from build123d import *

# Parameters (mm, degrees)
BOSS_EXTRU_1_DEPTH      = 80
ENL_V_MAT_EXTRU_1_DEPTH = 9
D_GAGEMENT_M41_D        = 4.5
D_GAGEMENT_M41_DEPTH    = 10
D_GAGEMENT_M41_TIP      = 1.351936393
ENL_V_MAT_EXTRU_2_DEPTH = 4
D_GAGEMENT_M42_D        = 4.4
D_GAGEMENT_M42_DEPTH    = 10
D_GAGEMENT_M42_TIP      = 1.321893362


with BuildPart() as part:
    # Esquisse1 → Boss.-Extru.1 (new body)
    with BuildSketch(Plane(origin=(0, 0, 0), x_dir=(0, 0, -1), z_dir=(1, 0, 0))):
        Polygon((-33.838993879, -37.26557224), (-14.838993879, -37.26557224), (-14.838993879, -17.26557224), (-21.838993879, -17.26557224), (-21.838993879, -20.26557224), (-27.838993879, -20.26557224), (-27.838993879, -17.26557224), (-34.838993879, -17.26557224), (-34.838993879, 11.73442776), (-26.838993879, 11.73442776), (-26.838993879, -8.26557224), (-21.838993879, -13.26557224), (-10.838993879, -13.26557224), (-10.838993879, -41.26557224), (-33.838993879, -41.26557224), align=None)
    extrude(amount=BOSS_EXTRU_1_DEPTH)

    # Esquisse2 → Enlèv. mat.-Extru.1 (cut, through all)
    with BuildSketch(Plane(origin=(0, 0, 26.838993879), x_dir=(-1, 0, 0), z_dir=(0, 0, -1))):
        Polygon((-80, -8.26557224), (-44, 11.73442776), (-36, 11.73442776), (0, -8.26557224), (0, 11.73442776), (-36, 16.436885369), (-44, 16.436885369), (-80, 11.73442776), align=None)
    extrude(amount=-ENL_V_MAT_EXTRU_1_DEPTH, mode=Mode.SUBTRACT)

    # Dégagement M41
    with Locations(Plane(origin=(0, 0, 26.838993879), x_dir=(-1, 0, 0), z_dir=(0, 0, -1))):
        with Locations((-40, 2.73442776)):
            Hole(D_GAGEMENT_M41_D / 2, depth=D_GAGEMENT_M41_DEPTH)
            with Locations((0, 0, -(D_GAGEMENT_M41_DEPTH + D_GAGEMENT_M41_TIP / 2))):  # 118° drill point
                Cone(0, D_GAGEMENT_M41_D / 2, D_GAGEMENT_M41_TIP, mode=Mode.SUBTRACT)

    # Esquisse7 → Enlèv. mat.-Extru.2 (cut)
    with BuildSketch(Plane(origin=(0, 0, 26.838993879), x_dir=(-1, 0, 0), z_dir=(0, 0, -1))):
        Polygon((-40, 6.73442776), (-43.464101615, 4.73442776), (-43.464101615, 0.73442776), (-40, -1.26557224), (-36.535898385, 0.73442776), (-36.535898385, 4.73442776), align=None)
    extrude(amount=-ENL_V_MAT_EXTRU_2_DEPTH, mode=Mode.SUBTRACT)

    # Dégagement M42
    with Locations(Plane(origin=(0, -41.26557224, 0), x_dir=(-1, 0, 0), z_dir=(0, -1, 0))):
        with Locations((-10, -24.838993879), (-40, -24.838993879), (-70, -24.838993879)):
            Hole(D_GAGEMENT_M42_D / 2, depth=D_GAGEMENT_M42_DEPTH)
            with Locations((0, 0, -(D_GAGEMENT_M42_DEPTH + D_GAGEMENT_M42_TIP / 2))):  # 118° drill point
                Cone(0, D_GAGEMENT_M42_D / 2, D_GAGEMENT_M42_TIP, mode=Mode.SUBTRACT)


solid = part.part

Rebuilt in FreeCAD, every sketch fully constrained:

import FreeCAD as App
import Part
import Sketcher
Q = App.Units.Quantity

doc = App.newDocument("Part")
body = doc.addObject("PartDesign::Body", "Body")

# Sketch on YZ plane
sketch1 = body.newObject("Sketcher::SketchObject", "Sketch")
sketch1.AttachmentSupport = (doc.getObject("YZ_Plane"), [""])
sketch1.MapMode = "FlatFace"
sketch1.addGeometry([
    Part.LineSegment(App.Vector(-37.3, 14.8, 0), App.Vector(-37.3, 33.8, 0)),  # 0
    Part.LineSegment(App.Vector(-37.3, 33.8, 0), App.Vector(-41.3, 33.8, 0)),  # 1
    Part.LineSegment(App.Vector(-41.3, 33.8, 0), App.Vector(-41.3, 10.8, 0)),  # 2
    Part.LineSegment(App.Vector(-41.3, 10.8, 0), App.Vector(-13.3, 10.8, 0)),  # 3
    Part.LineSegment(App.Vector(-13.3, 10.8, 0), App.Vector(-13.3, 21.8, 0)),  # 4
    Part.LineSegment(App.Vector(-13.3, 21.8, 0), App.Vector(-8.3, 26.8, 0)),  # 5
    Part.LineSegment(App.Vector(-8.3, 26.8, 0), App.Vector(11.7, 26.8, 0)),  # 6
    Part.LineSegment(App.Vector(11.7, 26.8, 0), App.Vector(11.7, 34.8, 0)),  # 7
    Part.LineSegment(App.Vector(11.7, 34.8, 0), App.Vector(-17.3, 34.8, 0)),  # 8
    Part.LineSegment(App.Vector(-17.3, 34.8, 0), App.Vector(-17.3, 27.8, 0)),  # 9
    Part.LineSegment(App.Vector(-17.3, 27.8, 0), App.Vector(-20.3, 27.8, 0)),  # 10
    Part.LineSegment(App.Vector(-20.3, 27.8, 0), App.Vector(-20.3, 21.8, 0)),  # 11
    Part.LineSegment(App.Vector(-20.3, 21.8, 0), App.Vector(-17.3, 21.8, 0)),  # 12
    Part.LineSegment(App.Vector(-17.3, 21.8, 0), App.Vector(-17.3, 14.8, 0)),  # 13
    Part.LineSegment(App.Vector(-17.3, 14.8, 0), App.Vector(-37.3, 14.8, 0)),  # 14
], False)
sketch1.addConstraint([
    Sketcher.Constraint("Coincident", 0, 2, 1, 1),
    Sketcher.Constraint("Coincident", 1, 2, 2, 1),
    Sketcher.Constraint("Coincident", 2, 2, 3, 1),
    Sketcher.Constraint("Coincident", 3, 2, 4, 1),
    Sketcher.Constraint("Coincident", 4, 2, 5, 1),
    Sketcher.Constraint("Coincident", 5, 2, 6, 1),
    Sketcher.Constraint("Coincident", 6, 2, 7, 1),
    Sketcher.Constraint("Coincident", 7, 2, 8, 1),
    Sketcher.Constraint("Coincident", 8, 2, 9, 1),
    Sketcher.Constraint("Coincident", 9, 2, 10, 1),
    Sketcher.Constraint("Coincident", 10, 2, 11, 1),
    Sketcher.Constraint("Coincident", 11, 2, 12, 1),
    Sketcher.Constraint("Coincident", 12, 2, 13, 1),
    Sketcher.Constraint("Coincident", 13, 2, 14, 1),
    Sketcher.Constraint("Coincident", 14, 2, 0, 1),
    Sketcher.Constraint("Vertical", 0),
    Sketcher.Constraint("Horizontal", 1),
    Sketcher.Constraint("Vertical", 2),
    Sketcher.Constraint("Horizontal", 3),
    Sketcher.Constraint("Vertical", 4),
    Sketcher.Constraint("Horizontal", 6),
    Sketcher.Constraint("Vertical", 7),
    Sketcher.Constraint("Horizontal", 8),
    Sketcher.Constraint("Vertical", 9),
    Sketcher.Constraint("Horizontal", 10),
    Sketcher.Constraint("Vertical", 11),
    Sketcher.Constraint("Horizontal", 12),
    Sketcher.Constraint("Vertical", 13),
    Sketcher.Constraint("Horizontal", 14),
    Sketcher.Constraint("Horizontal", 4, 2, 11, 2),
    Sketcher.Constraint("Vertical", 9, 2, 12, 2),
    Sketcher.Constraint("Equal", 6, 14),
    Sketcher.Constraint("Equal", 9, 13),
    Sketcher.Constraint("DistanceX", 1, 2, 1, 1, 4.0),
    Sketcher.Constraint("DistanceX", 3, 1, 3, 2, 28.0),
    Sketcher.Constraint("DistanceX", 6, 1, 6, 2, 20.0),
    Sketcher.Constraint("DistanceX", 8, 2, 8, 1, 29.0),
    Sketcher.Constraint("DistanceX", 10, 2, 10, 1, 3.0),
    Sketcher.Constraint("DistanceY", 0, 1, 0, 2, 19.0),
    Sketcher.Constraint("DistanceY", 2, 2, 2, 1, 23.0),
    Sketcher.Constraint("DistanceY", 4, 1, 4, 2, 11.0),
    Sketcher.Constraint("DistanceY", 7, 1, 7, 2, 8.0),
    Sketcher.Constraint("DistanceY", 11, 2, 11, 1, 6.0),
    Sketcher.Constraint("DistanceX", 0, 2, -1, 1, 37.265572),
    Sketcher.Constraint("DistanceY", -1, 1, 0, 2, 33.838994),
])
pad1 = body.newObject("PartDesign::Pad", "Pad")
pad1.Profile = sketch1
pad1.Length = 80

# Sketch on XY plane
sketch2 = body.newObject("Sketcher::SketchObject", "Sketch001")
sketch2.AttachmentSupport = (doc.getObject("XY_Plane"), [""])
sketch2.MapMode = "FlatFace"
sketch2.AttachmentOffset = App.Placement(App.Vector(0, 0, 26.838994), App.Rotation())
sketch2.addGeometry([
    Part.LineSegment(App.Vector(80, -8, 0), App.Vector(44, 12, 0)),  # 0
    Part.LineSegment(App.Vector(44, 12, 0), App.Vector(36, 12, 0)),  # 1
    Part.LineSegment(App.Vector(36, 12, 0), App.Vector(0, -8, 0)),  # 2
    Part.LineSegment(App.Vector(0, -8, 0), App.Vector(0, 12, 0)),  # 3
    Part.LineSegment(App.Vector(0, 12, 0), App.Vector(36, 16, 0)),  # 4
    Part.LineSegment(App.Vector(36, 16, 0), App.Vector(44, 16, 0)),  # 5
    Part.LineSegment(App.Vector(44, 16, 0), App.Vector(80, 12, 0)),  # 6
    Part.LineSegment(App.Vector(80, 12, 0), App.Vector(80, -8, 0)),  # 7
], False)
sketch2.addConstraint([
    Sketcher.Constraint("Coincident", 0, 2, 1, 1),
    Sketcher.Constraint("Coincident", 1, 2, 2, 1),
    Sketcher.Constraint("Coincident", 2, 2, 3, 1),
    Sketcher.Constraint("Coincident", 3, 2, 4, 1),
    Sketcher.Constraint("Coincident", 4, 2, 5, 1),
    Sketcher.Constraint("Coincident", 5, 2, 6, 1),
    Sketcher.Constraint("Coincident", 6, 2, 7, 1),
    Sketcher.Constraint("Coincident", 7, 2, 0, 1),
    Sketcher.Constraint("Horizontal", 1),
    Sketcher.Constraint("Vertical", 3),
    Sketcher.Constraint("Horizontal", 5),
    Sketcher.Constraint("Vertical", 7),
    Sketcher.Constraint("PointOnObject", 2, 2, -2),
    Sketcher.Constraint("Horizontal", 1, 2, 3, 2),
    Sketcher.Constraint("Horizontal", 3, 2, 6, 2),
    Sketcher.Constraint("Horizontal", 2, 2, 7, 2),
    Sketcher.Constraint("Vertical", 1, 2, 4, 2),
    Sketcher.Constraint("Vertical", 0, 2, 5, 2),
    Sketcher.Constraint("Equal", 0, 2),
    Sketcher.Constraint("DistanceX", 1, 2, 1, 1, 8.0),
    Sketcher.Constraint("DistanceY", 3, 1, 3, 2, 20.0),
    Sketcher.Constraint("DistanceX", -1, 1, 0, 2, 44.0),
    Sketcher.Constraint("Distance", 4, 36.305827),
    Sketcher.Constraint("DistanceY", -1, 1, 0, 2, 11.734428),
])
pocket1 = body.newObject("PartDesign::Pocket", "Pocket")
pocket1.Profile = sketch2
pocket1.Type = "ThroughAll"
pocket1.Reversed = True

# Sketch on XY plane
sketch3 = body.newObject("Sketcher::SketchObject", "Sketch002")
sketch3.AttachmentSupport = (doc.getObject("XY_Plane"), [""])
sketch3.MapMode = "FlatFace"
sketch3.AttachmentOffset = App.Placement(App.Vector(0, 0, 26.838994), App.Rotation())
sketch3.addGeometry(Part.Circle(App.Vector(40, 2.7, 0), App.Vector(0, 0, 1), 2.2), False)
sketch3.addConstraint([
    Sketcher.Constraint("Diameter", 0, 4.5),
    Sketcher.Constraint("DistanceX", -1, 1, 0, 3, 40.0),
    Sketcher.Constraint("DistanceY", -1, 1, 0, 3, 2.734428),
])
doc.recompute()
hole = body.newObject("PartDesign::Hole", "Hole")
hole.Profile = sketch3
hole.ThreadType = "None"
hole.Diameter = 4.5
hole.DepthType = "Dimension"
hole.Depth = 10
hole.DrillPoint = "Angled"
hole.DrillPointAngle = 118
hole.Reversed = True

# Sketch on XY plane
sketch4 = body.newObject("Sketcher::SketchObject", "Sketch003")
sketch4.AttachmentSupport = (doc.getObject("XY_Plane"), [""])
sketch4.MapMode = "FlatFace"
sketch4.AttachmentOffset = App.Placement(App.Vector(0, 0, 26.838994), App.Rotation())
sketch4.addGeometry([
    Part.LineSegment(App.Vector(40, 6.7, 0), App.Vector(43.5, 4.7, 0)),  # 0
    Part.LineSegment(App.Vector(43.5, 4.7, 0), App.Vector(43.5, 0.7, 0)),  # 1
    Part.LineSegment(App.Vector(43.5, 0.7, 0), App.Vector(40, -1.3, 0)),  # 2
    Part.LineSegment(App.Vector(40, -1.3, 0), App.Vector(36.5, 0.7, 0)),  # 3
    Part.LineSegment(App.Vector(36.5, 0.7, 0), App.Vector(36.5, 4.7, 0)),  # 4
    Part.LineSegment(App.Vector(36.5, 4.7, 0), App.Vector(40, 6.7, 0)),  # 5
], False)
sketch4.addConstraint([
    Sketcher.Constraint("Coincident", 0, 2, 1, 1),
    Sketcher.Constraint("Coincident", 1, 2, 2, 1),
    Sketcher.Constraint("Coincident", 2, 2, 3, 1),
    Sketcher.Constraint("Coincident", 3, 2, 4, 1),
    Sketcher.Constraint("Coincident", 4, 2, 5, 1),
    Sketcher.Constraint("Coincident", 5, 2, 0, 1),
    Sketcher.Constraint("Vertical", 1),
    Sketcher.Constraint("Vertical", 4),
    Sketcher.Constraint("Parallel", 0, 3),
    Sketcher.Constraint("Parallel", 2, 5),
    Sketcher.Constraint("Horizontal", 1, 2, 3, 2),
    Sketcher.Constraint("Horizontal", 0, 2, 4, 2),
    Sketcher.Constraint("Vertical", 2, 2, 5, 2),
    Sketcher.Constraint("DistanceY", 1, 2, 1, 1, 4.0),
    Sketcher.Constraint("Angle", 0, Q("-30 deg")),
    Sketcher.Constraint("Distance", 0, 4.0),
    Sketcher.Constraint("DistanceX", -1, 1, 2, 2, 40.0),
    Sketcher.Constraint("DistanceY", -1, 1, 0, 2, 4.734428),
])
pocket2 = body.newObject("PartDesign::Pocket", "Pocket001")
pocket2.Profile = sketch4
pocket2.Length = 4
pocket2.Reversed = True

# Sketch on XZ plane
sketch5 = body.newObject("Sketcher::SketchObject", "Sketch004")
sketch5.AttachmentSupport = (doc.getObject("XZ_Plane"), [""])
sketch5.MapMode = "FlatFace"
sketch5.AttachmentOffset = App.Placement(App.Vector(0, 0, 41.265572), App.Rotation())
sketch5.addGeometry([
    Part.Circle(App.Vector(10, 24.8, 0), App.Vector(0, 0, 1), 2.2),
    Part.Circle(App.Vector(40, 24.8, 0), App.Vector(0, 0, 1), 2.2),
    Part.Circle(App.Vector(70, 24.8, 0), App.Vector(0, 0, 1), 2.2),
], False)
sketch5.addConstraint([
    Sketcher.Constraint("Equal", 0, 1),
    Sketcher.Constraint("Equal", 1, 2),
    Sketcher.Constraint("Horizontal", 0, 3, 1, 3),
    Sketcher.Constraint("Horizontal", 1, 3, 2, 3),
    Sketcher.Constraint("Diameter", 0, 4.4),
    Sketcher.Constraint("DistanceX", -1, 1, 0, 3, 10.0),
    Sketcher.Constraint("DistanceX", -1, 1, 1, 3, 40.0),
    Sketcher.Constraint("DistanceX", -1, 1, 2, 3, 70.0),
    Sketcher.Constraint("DistanceY", -1, 1, 0, 3, 24.838994),
])
doc.recompute()
hole2 = body.newObject("PartDesign::Hole", "Hole001")
hole2.Profile = sketch5
hole2.ThreadType = "None"
hole2.Diameter = 4.4
hole2.DepthType = "Dimension"
hole2.Depth = 10
hole2.DrillPoint = "Angled"
hole2.DrillPointAngle = 118

doc.recompute()
